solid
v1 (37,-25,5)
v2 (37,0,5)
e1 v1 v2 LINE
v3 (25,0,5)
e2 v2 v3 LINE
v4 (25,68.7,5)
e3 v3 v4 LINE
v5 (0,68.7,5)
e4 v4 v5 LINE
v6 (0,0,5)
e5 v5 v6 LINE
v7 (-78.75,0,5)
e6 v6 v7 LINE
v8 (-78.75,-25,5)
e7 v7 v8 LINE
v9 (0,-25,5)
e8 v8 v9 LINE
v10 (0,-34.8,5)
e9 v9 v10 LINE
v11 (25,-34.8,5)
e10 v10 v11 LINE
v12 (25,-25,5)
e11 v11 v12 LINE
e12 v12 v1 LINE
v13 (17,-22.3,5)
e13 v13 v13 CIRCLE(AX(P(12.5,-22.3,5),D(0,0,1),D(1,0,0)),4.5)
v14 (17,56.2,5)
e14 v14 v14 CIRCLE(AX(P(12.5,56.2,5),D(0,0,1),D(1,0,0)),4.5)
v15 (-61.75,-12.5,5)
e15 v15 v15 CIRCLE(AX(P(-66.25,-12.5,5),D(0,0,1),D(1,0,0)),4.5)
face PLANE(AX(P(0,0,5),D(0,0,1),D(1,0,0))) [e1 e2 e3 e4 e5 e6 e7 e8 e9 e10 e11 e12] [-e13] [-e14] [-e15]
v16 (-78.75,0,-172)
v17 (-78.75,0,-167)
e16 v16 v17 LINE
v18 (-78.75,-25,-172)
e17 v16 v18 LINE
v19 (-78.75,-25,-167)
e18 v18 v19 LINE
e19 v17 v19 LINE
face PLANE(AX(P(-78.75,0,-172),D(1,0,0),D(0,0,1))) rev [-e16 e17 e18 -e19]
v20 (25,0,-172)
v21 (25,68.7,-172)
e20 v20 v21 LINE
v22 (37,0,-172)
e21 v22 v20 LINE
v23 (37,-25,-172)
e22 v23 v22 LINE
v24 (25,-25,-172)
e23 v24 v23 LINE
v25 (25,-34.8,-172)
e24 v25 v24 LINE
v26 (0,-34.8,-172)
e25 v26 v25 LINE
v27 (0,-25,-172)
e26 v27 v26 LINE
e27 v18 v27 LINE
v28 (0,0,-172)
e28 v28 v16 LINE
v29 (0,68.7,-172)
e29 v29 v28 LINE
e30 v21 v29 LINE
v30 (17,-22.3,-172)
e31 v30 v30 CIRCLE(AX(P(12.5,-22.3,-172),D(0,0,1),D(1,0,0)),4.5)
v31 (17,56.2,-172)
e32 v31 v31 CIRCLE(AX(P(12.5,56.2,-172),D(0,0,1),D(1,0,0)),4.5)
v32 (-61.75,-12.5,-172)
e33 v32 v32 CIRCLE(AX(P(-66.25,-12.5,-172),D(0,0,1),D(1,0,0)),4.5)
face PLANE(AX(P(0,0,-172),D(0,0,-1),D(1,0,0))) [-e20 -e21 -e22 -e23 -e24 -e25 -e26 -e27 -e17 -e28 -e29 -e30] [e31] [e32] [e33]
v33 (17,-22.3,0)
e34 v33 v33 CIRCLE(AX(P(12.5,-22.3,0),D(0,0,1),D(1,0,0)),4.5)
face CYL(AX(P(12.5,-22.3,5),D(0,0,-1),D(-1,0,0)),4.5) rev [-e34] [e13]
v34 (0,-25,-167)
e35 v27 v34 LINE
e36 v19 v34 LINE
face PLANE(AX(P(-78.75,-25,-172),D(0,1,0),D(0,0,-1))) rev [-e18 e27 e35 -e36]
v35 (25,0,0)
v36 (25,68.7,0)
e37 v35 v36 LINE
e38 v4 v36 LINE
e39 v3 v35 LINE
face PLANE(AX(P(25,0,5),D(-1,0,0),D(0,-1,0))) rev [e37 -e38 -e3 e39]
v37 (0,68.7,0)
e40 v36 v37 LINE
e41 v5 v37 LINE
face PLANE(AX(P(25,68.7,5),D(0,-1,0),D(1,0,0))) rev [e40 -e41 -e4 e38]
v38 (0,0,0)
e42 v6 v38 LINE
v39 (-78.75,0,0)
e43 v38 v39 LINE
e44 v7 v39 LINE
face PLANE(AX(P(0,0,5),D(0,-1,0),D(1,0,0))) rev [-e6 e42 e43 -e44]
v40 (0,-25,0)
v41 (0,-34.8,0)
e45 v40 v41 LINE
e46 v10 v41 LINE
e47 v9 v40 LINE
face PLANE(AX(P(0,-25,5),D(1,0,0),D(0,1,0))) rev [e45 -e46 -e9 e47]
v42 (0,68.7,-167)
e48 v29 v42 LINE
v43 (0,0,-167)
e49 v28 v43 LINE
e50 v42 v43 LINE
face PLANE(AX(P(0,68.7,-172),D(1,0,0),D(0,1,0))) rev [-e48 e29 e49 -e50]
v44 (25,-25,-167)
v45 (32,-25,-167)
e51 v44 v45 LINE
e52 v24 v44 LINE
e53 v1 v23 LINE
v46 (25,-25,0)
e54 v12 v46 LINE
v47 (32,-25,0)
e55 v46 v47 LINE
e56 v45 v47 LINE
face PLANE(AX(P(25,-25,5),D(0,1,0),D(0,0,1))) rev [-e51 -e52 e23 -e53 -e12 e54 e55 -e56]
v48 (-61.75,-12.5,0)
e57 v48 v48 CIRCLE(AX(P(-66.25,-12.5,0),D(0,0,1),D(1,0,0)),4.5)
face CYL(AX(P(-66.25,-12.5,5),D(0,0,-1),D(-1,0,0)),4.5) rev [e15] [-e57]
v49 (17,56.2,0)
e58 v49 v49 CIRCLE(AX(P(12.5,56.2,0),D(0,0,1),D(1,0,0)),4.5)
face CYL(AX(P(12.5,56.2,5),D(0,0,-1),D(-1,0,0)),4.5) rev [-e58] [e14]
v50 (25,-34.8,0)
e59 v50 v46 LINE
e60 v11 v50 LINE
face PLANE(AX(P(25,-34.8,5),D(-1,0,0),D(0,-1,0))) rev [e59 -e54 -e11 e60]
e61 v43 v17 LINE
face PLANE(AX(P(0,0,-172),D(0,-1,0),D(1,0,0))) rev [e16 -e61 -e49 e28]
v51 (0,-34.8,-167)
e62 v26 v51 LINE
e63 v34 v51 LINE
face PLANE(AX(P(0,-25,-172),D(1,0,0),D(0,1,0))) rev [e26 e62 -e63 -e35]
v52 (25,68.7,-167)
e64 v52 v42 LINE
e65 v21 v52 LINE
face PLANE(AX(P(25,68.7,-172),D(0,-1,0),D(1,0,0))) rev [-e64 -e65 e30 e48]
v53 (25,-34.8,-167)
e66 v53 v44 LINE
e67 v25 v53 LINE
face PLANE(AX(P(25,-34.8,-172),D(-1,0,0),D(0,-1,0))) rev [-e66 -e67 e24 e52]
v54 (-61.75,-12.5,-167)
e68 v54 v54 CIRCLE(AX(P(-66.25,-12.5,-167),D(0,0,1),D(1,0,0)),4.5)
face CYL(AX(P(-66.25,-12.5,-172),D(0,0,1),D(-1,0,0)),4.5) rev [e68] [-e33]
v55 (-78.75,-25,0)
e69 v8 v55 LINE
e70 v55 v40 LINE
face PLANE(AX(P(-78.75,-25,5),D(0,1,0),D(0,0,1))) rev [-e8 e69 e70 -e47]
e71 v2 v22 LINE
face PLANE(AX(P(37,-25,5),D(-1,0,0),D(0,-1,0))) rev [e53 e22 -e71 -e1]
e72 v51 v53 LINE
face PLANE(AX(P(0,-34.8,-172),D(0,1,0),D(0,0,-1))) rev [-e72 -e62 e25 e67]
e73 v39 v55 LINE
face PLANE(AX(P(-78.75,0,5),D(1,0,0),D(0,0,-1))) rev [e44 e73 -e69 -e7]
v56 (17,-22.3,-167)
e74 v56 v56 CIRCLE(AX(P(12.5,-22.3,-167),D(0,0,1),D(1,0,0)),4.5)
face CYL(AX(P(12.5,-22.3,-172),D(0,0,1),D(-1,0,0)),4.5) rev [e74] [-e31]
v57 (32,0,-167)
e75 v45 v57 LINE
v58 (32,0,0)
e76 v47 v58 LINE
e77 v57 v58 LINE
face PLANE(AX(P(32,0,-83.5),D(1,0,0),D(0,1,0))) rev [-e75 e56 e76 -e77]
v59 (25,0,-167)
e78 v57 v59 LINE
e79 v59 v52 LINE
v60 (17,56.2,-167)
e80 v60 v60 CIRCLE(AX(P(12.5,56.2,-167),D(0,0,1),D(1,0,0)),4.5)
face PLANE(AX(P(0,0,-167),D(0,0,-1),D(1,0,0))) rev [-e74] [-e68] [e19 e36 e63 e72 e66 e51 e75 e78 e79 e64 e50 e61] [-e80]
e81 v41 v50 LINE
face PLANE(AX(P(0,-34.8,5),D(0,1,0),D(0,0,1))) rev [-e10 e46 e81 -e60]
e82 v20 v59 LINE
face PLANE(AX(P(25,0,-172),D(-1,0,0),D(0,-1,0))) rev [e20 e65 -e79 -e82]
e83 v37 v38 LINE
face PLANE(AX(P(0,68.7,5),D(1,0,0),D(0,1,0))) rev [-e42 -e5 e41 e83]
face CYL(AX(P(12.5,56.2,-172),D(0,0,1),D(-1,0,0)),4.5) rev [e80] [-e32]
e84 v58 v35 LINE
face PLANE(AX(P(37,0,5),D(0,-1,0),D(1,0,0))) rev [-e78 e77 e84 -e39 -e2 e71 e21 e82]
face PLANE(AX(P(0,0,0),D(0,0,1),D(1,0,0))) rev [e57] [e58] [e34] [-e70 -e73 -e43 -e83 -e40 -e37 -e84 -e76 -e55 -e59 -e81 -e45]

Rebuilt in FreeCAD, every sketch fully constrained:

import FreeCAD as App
import Part
import Sketcher

V = App.Vector


def add_polygon(sketch, points):
    """Adds a closed chain of lines whose ends are joined by coincident constraints."""
    first, n = sketch.GeometryCount, len(points)
    for a, b in zip(points, points[1:] + points[:1]):
        sketch.addGeometry(Part.LineSegment(App.Vector(*a, 0), App.Vector(*b, 0)), False)
    for i in range(n):
        sketch.addConstraint(Sketcher.Constraint("Coincident", first + i, 2, first + (i + 1) % n, 1))

doc = App.newDocument("Part")
params = doc.addObject("Spreadsheet::Sheet", "Params")
for row, (alias, value) in enumerate([
    ("sketch1_diameter", "9 mm"),
    ("sketch1_width", "25 mm"),
    ("sketch1_width2", "12 mm"),
    ("sketch1_height", "9.8 mm"),
    ("sketch1_height2", "68.7 mm"),
    ("pad1_length", "5 mm"),
    ("sketch2_width", "5 mm"),
    ("sketch2_height", "25 mm"),
    ("pad2_length", "83.5 mm"),
], start=1):
    params.set(f"A{row}", alias)
    params.set(f"B{row}", "=" + value)
    params.setAlias(f"B{row}", alias)

body = doc.addObject("PartDesign::Body", "Body")

sketch1 = doc.addObject("Sketcher::SketchObject", "Sketch")
body.addObject(sketch1)
sketch1.AttachmentSupport = (doc.XY_Plane, [""])
sketch1.MapMode = "FlatFace"
add_polygon(sketch1, [(0, 0), (-78.8, 0), (-78.8, -25), (0, -25), (0, -34.8), (25, -34.8), (25, -25), (37, -25), (37, 0), (25, 0), (25, 68.7), (0, 68.7)])
sketch1.addGeometry(Part.Circle(V(-66.2, -12.5, 0), V(0, 0, 1), 4.5), False)
sketch1.addGeometry(Part.Circle(V(12.5, -22.3, 0), V(0, 0, 1), 4.5), False)
sketch1.addGeometry(Part.Circle(V(12.5, 56.2, 0), V(0, 0, 1), 4.5), False)
sketch1.addConstraint([
    Sketcher.Constraint("Horizontal", 0),
    Sketcher.Constraint("Vertical", 1),
    Sketcher.Constraint("Horizontal", 2),
    Sketcher.Constraint("Vertical", 3),
    Sketcher.Constraint("Horizontal", 4),
    Sketcher.Constraint("Vertical", 5),
    Sketcher.Constraint("Horizontal", 6),
    Sketcher.Constraint("Vertical", 7),
    Sketcher.Constraint("Horizontal", 8),
    Sketcher.Constraint("Vertical", 9),
    Sketcher.Constraint("Horizontal", 10),
    Sketcher.Constraint("Vertical", 11),
    Sketcher.Constraint("Coincident", 11, 2, -1, 1),
    Sketcher.Constraint("Equal", 12, 13),
    Sketcher.Constraint("Equal", 13, 14),
    Sketcher.Constraint("PointOnObject", 2, 2, -2),
    Sketcher.Constraint("PointOnObject", 7, 2, -1),
    Sketcher.Constraint("Horizontal", 2, 2, 5, 2),
    Sketcher.Constraint("Vertical", 13, 3, 14, 3),
    Sketcher.Constraint("Vertical", 5, 2, 8, 2),
    Sketcher.Constraint("Equal", 10, 1),
    Sketcher.Constraint("Diameter", 12, 9.0),
    Sketcher.Constraint("DistanceX", 4, 1, 4, 2, 25.0),
    Sketcher.Constraint("DistanceX", 6, 1, 6, 2, 12.0),
    Sketcher.Constraint("DistanceY", 3, 2, 3, 1, 9.8),
    Sketcher.Constraint("DistanceY", 9, 1, 9, 2, 68.7),
    Sketcher.Constraint("DistanceY", 4, 2, 14, 3, 91.0),
    Sketcher.Constraint("DistanceY", 13, 3, 9, 2, 91.0),
    Sketcher.Constraint("DistanceX", 0, 2, 0, 1, 78.75),
    Sketcher.Constraint("DistanceY", 12, 3, -1, 1, 12.5),
    Sketcher.Constraint("DistanceX", -1, 1, 13, 3, 12.5),
    Sketcher.Constraint("DistanceX", 0, 2, 12, 3, 12.5),
])
sketch1.setExpression("Constraints[33]", "Params.sketch1_diameter")
sketch1.setExpression("Constraints[34]", "Params.sketch1_width")
sketch1.setExpression("Constraints[35]", "Params.sketch1_width2")
sketch1.setExpression("Constraints[36]", "Params.sketch1_height")
sketch1.setExpression("Constraints[37]", "Params.sketch1_height2")
pad1 = doc.addObject("PartDesign::Pad", "Pad")
body.addObject(pad1)
pad1.Profile = sketch1
pad1.setExpression("Length", "Params.pad1_length")

sketch2 = doc.addObject("Sketcher::SketchObject", "Sketch001")
body.addObject(sketch2)
sketch2.AttachmentSupport = (doc.XY_Plane, [""])
sketch2.MapMode = "FlatFace"
add_polygon(sketch2, [(37, 0), (37, -25), (32, -25), (32, 0)])
sketch2.addConstraint([
    Sketcher.Constraint("Vertical", 0),
    Sketcher.Constraint("Horizontal", 1),
    Sketcher.Constraint("Vertical", 2),
    Sketcher.Constraint("Horizontal", 3),
    Sketcher.Constraint("PointOnObject", 2, 2, -1),
    Sketcher.Constraint("DistanceX", 1, 2, 1, 1, 5.0),
    Sketcher.Constraint("DistanceY", 0, 2, 0, 1, 25.0),
    Sketcher.Constraint("DistanceX", -1, 1, 0, 2, 37.0),
])
sketch2.setExpression("Constraints[9]", "Params.sketch2_width")
sketch2.setExpression("Constraints[10]", "Params.sketch2_height")
pad2 = doc.addObject("PartDesign::Pad", "Pad001")
body.addObject(pad2)
pad2.Profile = sketch2
pad2.setExpression("Length", "Params.pad2_length")
pad2.Reversed = True
body2 = doc.addObject("PartDesign::Body", "Body001")
doc.recompute()

body2.BaseFeature = body
doc.recompute()

mirroring = doc.addObject("Part::Mirroring", "Mirroring")
mirroring.Source = body
mirroring.Base = V(0, 0, -83.5)
mirroring.Normal = V(0, 0, -1)
body3 = doc.addObject("PartDesign::Body", "Body002")
body3.BaseFeature = mirroring
boolean = doc.addObject("PartDesign::Boolean", "Boolean")
body2.addObject(boolean)
boolean.Type = "Fuse"
boolean.addObjects([body3])
doc.recompute()
mirroring.Visibility = False

doc.recompute()
